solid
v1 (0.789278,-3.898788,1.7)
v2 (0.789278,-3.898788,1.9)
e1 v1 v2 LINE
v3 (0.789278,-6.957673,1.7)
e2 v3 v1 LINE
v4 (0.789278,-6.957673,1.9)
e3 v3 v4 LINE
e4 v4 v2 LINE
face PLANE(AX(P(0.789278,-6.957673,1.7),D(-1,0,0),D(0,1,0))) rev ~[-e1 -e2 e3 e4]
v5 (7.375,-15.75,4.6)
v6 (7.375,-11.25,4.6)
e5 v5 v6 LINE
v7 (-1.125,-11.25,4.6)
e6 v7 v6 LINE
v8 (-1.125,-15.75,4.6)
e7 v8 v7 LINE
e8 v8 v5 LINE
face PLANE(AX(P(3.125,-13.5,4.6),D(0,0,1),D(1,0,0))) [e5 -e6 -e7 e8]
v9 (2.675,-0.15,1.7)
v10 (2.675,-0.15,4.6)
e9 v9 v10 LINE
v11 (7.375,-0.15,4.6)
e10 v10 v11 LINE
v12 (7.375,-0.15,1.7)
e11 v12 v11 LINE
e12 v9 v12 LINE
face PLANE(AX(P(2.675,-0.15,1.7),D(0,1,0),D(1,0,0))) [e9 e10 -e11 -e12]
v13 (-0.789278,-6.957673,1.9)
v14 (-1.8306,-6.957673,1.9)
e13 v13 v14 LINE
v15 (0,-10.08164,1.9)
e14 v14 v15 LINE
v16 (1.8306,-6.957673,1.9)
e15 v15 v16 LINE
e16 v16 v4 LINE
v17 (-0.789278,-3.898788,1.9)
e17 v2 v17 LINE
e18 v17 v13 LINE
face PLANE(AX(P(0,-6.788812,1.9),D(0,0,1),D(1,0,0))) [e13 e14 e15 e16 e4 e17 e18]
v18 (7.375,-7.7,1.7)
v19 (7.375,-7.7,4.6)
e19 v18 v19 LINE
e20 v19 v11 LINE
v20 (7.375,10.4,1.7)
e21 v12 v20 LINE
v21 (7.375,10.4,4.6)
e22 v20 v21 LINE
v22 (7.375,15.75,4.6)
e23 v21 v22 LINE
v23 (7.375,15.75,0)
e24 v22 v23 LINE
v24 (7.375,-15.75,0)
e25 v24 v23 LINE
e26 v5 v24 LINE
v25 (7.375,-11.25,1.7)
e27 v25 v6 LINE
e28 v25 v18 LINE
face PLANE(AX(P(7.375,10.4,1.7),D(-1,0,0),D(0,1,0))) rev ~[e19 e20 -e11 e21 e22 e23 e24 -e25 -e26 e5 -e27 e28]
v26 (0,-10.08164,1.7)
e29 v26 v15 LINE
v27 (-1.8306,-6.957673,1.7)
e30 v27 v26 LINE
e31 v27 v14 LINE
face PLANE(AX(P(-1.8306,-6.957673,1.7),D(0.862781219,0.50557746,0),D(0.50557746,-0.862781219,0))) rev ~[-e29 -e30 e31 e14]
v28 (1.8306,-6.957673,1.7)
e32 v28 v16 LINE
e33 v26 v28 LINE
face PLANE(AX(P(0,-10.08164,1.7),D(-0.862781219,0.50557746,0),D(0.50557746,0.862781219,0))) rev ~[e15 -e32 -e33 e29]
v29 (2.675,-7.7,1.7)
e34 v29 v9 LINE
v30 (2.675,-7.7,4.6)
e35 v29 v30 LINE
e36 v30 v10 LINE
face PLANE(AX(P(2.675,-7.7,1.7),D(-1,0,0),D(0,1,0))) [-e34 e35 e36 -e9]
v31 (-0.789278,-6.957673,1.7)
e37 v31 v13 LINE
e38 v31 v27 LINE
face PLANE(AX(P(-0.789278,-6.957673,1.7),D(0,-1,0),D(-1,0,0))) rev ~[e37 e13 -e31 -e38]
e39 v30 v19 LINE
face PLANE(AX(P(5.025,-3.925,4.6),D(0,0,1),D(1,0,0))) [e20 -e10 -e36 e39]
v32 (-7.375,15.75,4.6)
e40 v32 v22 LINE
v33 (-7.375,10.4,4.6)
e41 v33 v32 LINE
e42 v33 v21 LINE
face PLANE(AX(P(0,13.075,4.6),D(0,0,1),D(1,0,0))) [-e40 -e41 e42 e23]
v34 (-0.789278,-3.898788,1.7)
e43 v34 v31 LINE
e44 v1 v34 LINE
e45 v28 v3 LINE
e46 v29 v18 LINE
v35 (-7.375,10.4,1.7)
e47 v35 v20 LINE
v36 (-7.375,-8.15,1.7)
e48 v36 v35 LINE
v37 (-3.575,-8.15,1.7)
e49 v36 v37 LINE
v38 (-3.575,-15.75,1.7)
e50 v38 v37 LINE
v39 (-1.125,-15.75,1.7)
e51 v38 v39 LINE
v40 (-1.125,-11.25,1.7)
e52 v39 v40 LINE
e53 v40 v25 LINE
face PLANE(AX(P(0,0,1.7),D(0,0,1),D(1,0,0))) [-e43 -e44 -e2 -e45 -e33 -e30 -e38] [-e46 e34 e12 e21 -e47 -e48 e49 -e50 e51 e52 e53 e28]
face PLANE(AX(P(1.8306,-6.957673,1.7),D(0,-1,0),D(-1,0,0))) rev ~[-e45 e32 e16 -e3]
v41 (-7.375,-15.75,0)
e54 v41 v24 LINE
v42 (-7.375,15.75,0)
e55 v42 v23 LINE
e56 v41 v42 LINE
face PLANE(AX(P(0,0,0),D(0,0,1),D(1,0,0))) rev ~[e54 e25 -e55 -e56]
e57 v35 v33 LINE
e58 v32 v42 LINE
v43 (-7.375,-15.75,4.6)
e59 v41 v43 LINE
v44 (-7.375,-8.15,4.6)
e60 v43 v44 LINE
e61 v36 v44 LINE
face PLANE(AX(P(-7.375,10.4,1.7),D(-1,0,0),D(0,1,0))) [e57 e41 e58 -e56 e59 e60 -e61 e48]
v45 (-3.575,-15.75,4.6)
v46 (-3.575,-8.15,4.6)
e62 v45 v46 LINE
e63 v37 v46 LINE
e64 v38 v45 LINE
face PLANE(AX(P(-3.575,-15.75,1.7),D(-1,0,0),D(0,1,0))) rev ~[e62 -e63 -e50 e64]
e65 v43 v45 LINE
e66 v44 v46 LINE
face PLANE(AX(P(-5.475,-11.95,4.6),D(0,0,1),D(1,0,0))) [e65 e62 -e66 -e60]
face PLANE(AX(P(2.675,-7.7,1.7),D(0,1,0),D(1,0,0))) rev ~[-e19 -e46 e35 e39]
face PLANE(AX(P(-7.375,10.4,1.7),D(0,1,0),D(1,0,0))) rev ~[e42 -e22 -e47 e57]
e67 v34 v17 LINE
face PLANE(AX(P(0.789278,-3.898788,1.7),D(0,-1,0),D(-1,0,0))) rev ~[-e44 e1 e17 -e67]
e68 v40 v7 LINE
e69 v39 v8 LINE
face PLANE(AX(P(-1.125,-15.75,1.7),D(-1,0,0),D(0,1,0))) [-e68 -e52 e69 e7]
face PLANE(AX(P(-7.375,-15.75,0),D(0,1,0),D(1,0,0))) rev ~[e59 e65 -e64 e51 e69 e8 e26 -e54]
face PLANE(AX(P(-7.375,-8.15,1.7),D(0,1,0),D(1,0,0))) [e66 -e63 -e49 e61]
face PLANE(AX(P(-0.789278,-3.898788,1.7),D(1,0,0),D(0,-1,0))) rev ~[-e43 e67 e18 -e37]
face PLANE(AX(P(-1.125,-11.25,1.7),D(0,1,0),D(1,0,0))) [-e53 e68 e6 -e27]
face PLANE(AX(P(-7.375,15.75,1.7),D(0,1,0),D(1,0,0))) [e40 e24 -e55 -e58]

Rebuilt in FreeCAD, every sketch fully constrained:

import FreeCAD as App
import Part
import Sketcher
from FreeCAD import Vector

doc = App.newDocument("Part")
body = doc.addObject("PartDesign::Body", "Body")

# Sketch on XY plane
sketch1 = body.newObject("Sketcher::SketchObject", "Sketch")
sketch1.AttachmentSupport = (doc.getObject("XY_Plane"), [""])
sketch1.MapMode = "FlatFace"
sketch1.addGeometry([
    Part.LineSegment(Vector(-7, 16, 0), Vector(-7, -16, 0)),
    Part.LineSegment(Vector(-7, -16, 0), Vector(7, -16, 0)),
    Part.LineSegment(Vector(7, -16, 0), Vector(7, 16, 0)),
    Part.LineSegment(Vector(7, 16, 0), Vector(-7, 16, 0)),
], False)
sketch1.addConstraint([
    Sketcher.Constraint("Coincident", 0, 2, 1, 1),
    Sketcher.Constraint("Coincident", 1, 2, 2, 1),
    Sketcher.Constraint("Coincident", 2, 2, 3, 1),
    Sketcher.Constraint("Coincident", 3, 2, 0, 1),
    Sketcher.Constraint("Vertical", 0),
    Sketcher.Constraint("Horizontal", 1),
    Sketcher.Constraint("Vertical", 2),
    Sketcher.Constraint("Horizontal", 3),
    Sketcher.Constraint("Symmetric", 0, 2, 2, 2, -1, 1),
    Sketcher.Constraint("DistanceY", 0, 2, 0, 1, 31.5),
    Sketcher.Constraint("DistanceX", 1, 1, 1, 2, 14.75),
])
pad1 = body.newObject("PartDesign::Pad", "Pad")
pad1.Profile = sketch1
pad1.Length = 1.7

# Sketch on XY plane
sketch2 = body.newObject("Sketcher::SketchObject", "Sketch001")
sketch2.AttachmentSupport = (doc.getObject("XY_Plane"), [""])
sketch2.MapMode = "FlatFace"
sketch2.AttachmentOffset = App.Placement(Vector(0, 0, 1.7), App.Rotation())
sketch2.addGeometry([
    Part.LineSegment(Vector(-7.4, 15.8, 0), Vector(-7.4, 10.4, 0)),  # 0
    Part.LineSegment(Vector(-7.4, 10.4, 0), Vector(7.4, 10.4, 0)),  # 1
    Part.LineSegment(Vector(7.4, 10.4, 0), Vector(7.4, 15.8, 0)),  # 2
    Part.LineSegment(Vector(7.4, 15.8, 0), Vector(-7.4, 15.8, 0)),  # 3
    Part.LineSegment(Vector(-1.1, -11.2, 0), Vector(-1.1, -15.8, 0)),  # 4
    Part.LineSegment(Vector(-1.1, -15.8, 0), Vector(7.4, -15.8, 0)),  # 5
    Part.LineSegment(Vector(7.4, -15.8, 0), Vector(7.4, -11.2, 0)),  # 6
    Part.LineSegment(Vector(7.4, -11.2, 0), Vector(-1.1, -11.2, 0)),  # 7
    Part.LineSegment(Vector(-7.4, -8.2, 0), Vector(-7.4, -15.8, 0)),  # 8
    Part.LineSegment(Vector(-7.4, -15.8, 0), Vector(-3.6, -15.8, 0)),  # 9
    Part.LineSegment(Vector(-3.6, -15.8, 0), Vector(-3.6, -8.2, 0)),  # 10
    Part.LineSegment(Vector(-3.6, -8.2, 0), Vector(-7.4, -8.2, 0)),  # 11
    Part.LineSegment(Vector(2.7, -0.1, 0), Vector(2.7, -7.7, 0)),  # 12
    Part.LineSegment(Vector(2.7, -7.7, 0), Vector(7.4, -7.7, 0)),  # 13
    Part.LineSegment(Vector(7.4, -7.7, 0), Vector(7.4, -0.1, 0)),  # 14
    Part.LineSegment(Vector(7.4, -0.1, 0), Vector(2.7, -0.1, 0)),  # 15
], False)
sketch2.addConstraint([
    Sketcher.Constraint("Coincident", 0, 2, 1, 1),
    Sketcher.Constraint("Coincident", 1, 2, 2, 1),
    Sketcher.Constraint("Coincident", 2, 2, 3, 1),
    Sketcher.Constraint("Coincident", 3, 2, 0, 1),
    Sketcher.Constraint("Coincident", 4, 2, 5, 1),
    Sketcher.Constraint("Coincident", 5, 2, 6, 1),
    Sketcher.Constraint("Coincident", 6, 2, 7, 1),
    Sketcher.Constraint("Coincident", 7, 2, 4, 1),
    Sketcher.Constraint("Coincident", 8, 2, 9, 1),
    Sketcher.Constraint("Coincident", 9, 2, 10, 1),
    Sketcher.Constraint("Coincident", 10, 2, 11, 1),
    Sketcher.Constraint("Coincident", 11, 2, 8, 1),
    Sketcher.Constraint("Coincident", 12, 2, 13, 1),
    Sketcher.Constraint("Coincident", 13, 2, 14, 1),
    Sketcher.Constraint("Coincident", 14, 2, 15, 1),
    Sketcher.Constraint("Coincident", 15, 2, 12, 1),
    Sketcher.Constraint("Vertical", 0),
    Sketcher.Constraint("Horizontal", 1),
    Sketcher.Constraint("Vertical", 2),
    Sketcher.Constraint("Horizontal", 3),
    Sketcher.Constraint("Vertical", 4),
    Sketcher.Constraint("Horizontal", 5),
    Sketcher.Constraint("Vertical", 6),
    Sketcher.Constraint("Horizontal", 7),
    Sketcher.Constraint("Vertical", 8),
    Sketcher.Constraint("Horizontal", 9),
    Sketcher.Constraint("Vertical", 10),
    Sketcher.Constraint("Horizontal", 11),
    Sketcher.Constraint("Vertical", 12),
    Sketcher.Constraint("Horizontal", 13),
    Sketcher.Constraint("Vertical", 14),
    Sketcher.Constraint("Horizontal", 15),
    Sketcher.Constraint("Symmetric", 3, 2, 5, 2, -1, 1),
    Sketcher.Constraint("Symmetric", 2, 2, 8, 2, -1, 1),
    Sketcher.Constraint("Vertical", 2, 2, 5, 2),
    Sketcher.Constraint("Vertical", 6, 2, 13, 2),
    Sketcher.Constraint("DistanceX", 5, 1, 5, 2, 8.5),
    Sketcher.Constraint("DistanceX", 9, 1, 9, 2, 3.8),
    Sketcher.Constraint("DistanceX", 13, 1, 13, 2, 4.7),
    Sketcher.Constraint("DistanceY", 4, 2, 4, 1, 4.5),
    Sketcher.Constraint("DistanceY", 8, 2, 8, 1, 7.6),
    Sketcher.Constraint("DistanceY", 6, 2, 2, 2, 27.0),
    Sketcher.Constraint("DistanceY", 10, 2, 14, 2, 8.0),
    Sketcher.Constraint("DistanceX", 1, 1, 1, 2, 14.75),
    Sketcher.Constraint("DistanceY", 0, 2, 0, 1, 5.35),
    Sketcher.Constraint("DistanceY", 12, 2, 12, 1, 7.55),
])
pad2 = body.newObject("PartDesign::Pad", "Pad001")
pad2.Profile = sketch2
pad2.Length = 2.9

# Sketch on XY plane
sketch3 = body.newObject("Sketcher::SketchObject", "Sketch002")
sketch3.AttachmentSupport = (doc.getObject("XY_Plane"), [""])
sketch3.MapMode = "FlatFace"
sketch3.AttachmentOffset = App.Placement(Vector(0, 0, 1.7), App.Rotation())
sketch3.addGeometry([
    Part.LineSegment(Vector(0.8, -3.9, 0), Vector(-0.8, -3.9, 0)),  # 0
    Part.LineSegment(Vector(-0.8, -3.9, 0), Vector(-0.8, -7, 0)),  # 1
    Part.LineSegment(Vector(-0.8, -7, 0), Vector(-1.8, -7, 0)),  # 2
    Part.LineSegment(Vector(-1.8, -7, 0), Vector(0, -10.1, 0)),  # 3
    Part.LineSegment(Vector(0, -10.1, 0), Vector(1.8, -7, 0)),  # 4
    Part.LineSegment(Vector(1.8, -7, 0), Vector(0.8, -7, 0)),  # 5
    Part.LineSegment(Vector(0.8, -7, 0), Vector(0.8, -3.9, 0)),  # 6
], False)
sketch3.addConstraint([
    Sketcher.Constraint("Coincident", 0, 2, 1, 1),
    Sketcher.Constraint("Coincident", 1, 2, 2, 1),
    Sketcher.Constraint("Coincident", 2, 2, 3, 1),
    Sketcher.Constraint("Coincident", 3, 2, 4, 1),
    Sketcher.Constraint("Coincident", 4, 2, 5, 1),
    Sketcher.Constraint("Coincident", 5, 2, 6, 1),
    Sketcher.Constraint("Coincident", 6, 2, 0, 1),
    Sketcher.Constraint("Horizontal", 0),
    Sketcher.Constraint("Vertical", 1),
    Sketcher.Constraint("Horizontal", 2),
    Sketcher.Constraint("Horizontal", 5),
    Sketcher.Constraint("Vertical", 6),
    Sketcher.Constraint("Symmetric", 2, 2, 4, 2, -2),
    Sketcher.Constraint("PointOnObject", 3, 2, -2),
    Sketcher.Constraint("Equal", 2, 5),
    Sketcher.Constraint("DistanceX", 2, 2, -1, 1, 1.8306),
    Sketcher.Constraint("Distance", 3, 3.62081),
    Sketcher.Constraint("DistanceX", 0, 2, 0, 1, 1.578556),
    Sketcher.Constraint("DistanceY", 1, 2, 1, 1, 3.058885),
    Sketcher.Constraint("DistanceY", 0, 2, -1, 1, 3.898788),
])
pad3 = body.newObject("PartDesign::Pad", "Pad002")
pad3.Profile = sketch3
pad3.Length = 0.2

doc.recompute()
